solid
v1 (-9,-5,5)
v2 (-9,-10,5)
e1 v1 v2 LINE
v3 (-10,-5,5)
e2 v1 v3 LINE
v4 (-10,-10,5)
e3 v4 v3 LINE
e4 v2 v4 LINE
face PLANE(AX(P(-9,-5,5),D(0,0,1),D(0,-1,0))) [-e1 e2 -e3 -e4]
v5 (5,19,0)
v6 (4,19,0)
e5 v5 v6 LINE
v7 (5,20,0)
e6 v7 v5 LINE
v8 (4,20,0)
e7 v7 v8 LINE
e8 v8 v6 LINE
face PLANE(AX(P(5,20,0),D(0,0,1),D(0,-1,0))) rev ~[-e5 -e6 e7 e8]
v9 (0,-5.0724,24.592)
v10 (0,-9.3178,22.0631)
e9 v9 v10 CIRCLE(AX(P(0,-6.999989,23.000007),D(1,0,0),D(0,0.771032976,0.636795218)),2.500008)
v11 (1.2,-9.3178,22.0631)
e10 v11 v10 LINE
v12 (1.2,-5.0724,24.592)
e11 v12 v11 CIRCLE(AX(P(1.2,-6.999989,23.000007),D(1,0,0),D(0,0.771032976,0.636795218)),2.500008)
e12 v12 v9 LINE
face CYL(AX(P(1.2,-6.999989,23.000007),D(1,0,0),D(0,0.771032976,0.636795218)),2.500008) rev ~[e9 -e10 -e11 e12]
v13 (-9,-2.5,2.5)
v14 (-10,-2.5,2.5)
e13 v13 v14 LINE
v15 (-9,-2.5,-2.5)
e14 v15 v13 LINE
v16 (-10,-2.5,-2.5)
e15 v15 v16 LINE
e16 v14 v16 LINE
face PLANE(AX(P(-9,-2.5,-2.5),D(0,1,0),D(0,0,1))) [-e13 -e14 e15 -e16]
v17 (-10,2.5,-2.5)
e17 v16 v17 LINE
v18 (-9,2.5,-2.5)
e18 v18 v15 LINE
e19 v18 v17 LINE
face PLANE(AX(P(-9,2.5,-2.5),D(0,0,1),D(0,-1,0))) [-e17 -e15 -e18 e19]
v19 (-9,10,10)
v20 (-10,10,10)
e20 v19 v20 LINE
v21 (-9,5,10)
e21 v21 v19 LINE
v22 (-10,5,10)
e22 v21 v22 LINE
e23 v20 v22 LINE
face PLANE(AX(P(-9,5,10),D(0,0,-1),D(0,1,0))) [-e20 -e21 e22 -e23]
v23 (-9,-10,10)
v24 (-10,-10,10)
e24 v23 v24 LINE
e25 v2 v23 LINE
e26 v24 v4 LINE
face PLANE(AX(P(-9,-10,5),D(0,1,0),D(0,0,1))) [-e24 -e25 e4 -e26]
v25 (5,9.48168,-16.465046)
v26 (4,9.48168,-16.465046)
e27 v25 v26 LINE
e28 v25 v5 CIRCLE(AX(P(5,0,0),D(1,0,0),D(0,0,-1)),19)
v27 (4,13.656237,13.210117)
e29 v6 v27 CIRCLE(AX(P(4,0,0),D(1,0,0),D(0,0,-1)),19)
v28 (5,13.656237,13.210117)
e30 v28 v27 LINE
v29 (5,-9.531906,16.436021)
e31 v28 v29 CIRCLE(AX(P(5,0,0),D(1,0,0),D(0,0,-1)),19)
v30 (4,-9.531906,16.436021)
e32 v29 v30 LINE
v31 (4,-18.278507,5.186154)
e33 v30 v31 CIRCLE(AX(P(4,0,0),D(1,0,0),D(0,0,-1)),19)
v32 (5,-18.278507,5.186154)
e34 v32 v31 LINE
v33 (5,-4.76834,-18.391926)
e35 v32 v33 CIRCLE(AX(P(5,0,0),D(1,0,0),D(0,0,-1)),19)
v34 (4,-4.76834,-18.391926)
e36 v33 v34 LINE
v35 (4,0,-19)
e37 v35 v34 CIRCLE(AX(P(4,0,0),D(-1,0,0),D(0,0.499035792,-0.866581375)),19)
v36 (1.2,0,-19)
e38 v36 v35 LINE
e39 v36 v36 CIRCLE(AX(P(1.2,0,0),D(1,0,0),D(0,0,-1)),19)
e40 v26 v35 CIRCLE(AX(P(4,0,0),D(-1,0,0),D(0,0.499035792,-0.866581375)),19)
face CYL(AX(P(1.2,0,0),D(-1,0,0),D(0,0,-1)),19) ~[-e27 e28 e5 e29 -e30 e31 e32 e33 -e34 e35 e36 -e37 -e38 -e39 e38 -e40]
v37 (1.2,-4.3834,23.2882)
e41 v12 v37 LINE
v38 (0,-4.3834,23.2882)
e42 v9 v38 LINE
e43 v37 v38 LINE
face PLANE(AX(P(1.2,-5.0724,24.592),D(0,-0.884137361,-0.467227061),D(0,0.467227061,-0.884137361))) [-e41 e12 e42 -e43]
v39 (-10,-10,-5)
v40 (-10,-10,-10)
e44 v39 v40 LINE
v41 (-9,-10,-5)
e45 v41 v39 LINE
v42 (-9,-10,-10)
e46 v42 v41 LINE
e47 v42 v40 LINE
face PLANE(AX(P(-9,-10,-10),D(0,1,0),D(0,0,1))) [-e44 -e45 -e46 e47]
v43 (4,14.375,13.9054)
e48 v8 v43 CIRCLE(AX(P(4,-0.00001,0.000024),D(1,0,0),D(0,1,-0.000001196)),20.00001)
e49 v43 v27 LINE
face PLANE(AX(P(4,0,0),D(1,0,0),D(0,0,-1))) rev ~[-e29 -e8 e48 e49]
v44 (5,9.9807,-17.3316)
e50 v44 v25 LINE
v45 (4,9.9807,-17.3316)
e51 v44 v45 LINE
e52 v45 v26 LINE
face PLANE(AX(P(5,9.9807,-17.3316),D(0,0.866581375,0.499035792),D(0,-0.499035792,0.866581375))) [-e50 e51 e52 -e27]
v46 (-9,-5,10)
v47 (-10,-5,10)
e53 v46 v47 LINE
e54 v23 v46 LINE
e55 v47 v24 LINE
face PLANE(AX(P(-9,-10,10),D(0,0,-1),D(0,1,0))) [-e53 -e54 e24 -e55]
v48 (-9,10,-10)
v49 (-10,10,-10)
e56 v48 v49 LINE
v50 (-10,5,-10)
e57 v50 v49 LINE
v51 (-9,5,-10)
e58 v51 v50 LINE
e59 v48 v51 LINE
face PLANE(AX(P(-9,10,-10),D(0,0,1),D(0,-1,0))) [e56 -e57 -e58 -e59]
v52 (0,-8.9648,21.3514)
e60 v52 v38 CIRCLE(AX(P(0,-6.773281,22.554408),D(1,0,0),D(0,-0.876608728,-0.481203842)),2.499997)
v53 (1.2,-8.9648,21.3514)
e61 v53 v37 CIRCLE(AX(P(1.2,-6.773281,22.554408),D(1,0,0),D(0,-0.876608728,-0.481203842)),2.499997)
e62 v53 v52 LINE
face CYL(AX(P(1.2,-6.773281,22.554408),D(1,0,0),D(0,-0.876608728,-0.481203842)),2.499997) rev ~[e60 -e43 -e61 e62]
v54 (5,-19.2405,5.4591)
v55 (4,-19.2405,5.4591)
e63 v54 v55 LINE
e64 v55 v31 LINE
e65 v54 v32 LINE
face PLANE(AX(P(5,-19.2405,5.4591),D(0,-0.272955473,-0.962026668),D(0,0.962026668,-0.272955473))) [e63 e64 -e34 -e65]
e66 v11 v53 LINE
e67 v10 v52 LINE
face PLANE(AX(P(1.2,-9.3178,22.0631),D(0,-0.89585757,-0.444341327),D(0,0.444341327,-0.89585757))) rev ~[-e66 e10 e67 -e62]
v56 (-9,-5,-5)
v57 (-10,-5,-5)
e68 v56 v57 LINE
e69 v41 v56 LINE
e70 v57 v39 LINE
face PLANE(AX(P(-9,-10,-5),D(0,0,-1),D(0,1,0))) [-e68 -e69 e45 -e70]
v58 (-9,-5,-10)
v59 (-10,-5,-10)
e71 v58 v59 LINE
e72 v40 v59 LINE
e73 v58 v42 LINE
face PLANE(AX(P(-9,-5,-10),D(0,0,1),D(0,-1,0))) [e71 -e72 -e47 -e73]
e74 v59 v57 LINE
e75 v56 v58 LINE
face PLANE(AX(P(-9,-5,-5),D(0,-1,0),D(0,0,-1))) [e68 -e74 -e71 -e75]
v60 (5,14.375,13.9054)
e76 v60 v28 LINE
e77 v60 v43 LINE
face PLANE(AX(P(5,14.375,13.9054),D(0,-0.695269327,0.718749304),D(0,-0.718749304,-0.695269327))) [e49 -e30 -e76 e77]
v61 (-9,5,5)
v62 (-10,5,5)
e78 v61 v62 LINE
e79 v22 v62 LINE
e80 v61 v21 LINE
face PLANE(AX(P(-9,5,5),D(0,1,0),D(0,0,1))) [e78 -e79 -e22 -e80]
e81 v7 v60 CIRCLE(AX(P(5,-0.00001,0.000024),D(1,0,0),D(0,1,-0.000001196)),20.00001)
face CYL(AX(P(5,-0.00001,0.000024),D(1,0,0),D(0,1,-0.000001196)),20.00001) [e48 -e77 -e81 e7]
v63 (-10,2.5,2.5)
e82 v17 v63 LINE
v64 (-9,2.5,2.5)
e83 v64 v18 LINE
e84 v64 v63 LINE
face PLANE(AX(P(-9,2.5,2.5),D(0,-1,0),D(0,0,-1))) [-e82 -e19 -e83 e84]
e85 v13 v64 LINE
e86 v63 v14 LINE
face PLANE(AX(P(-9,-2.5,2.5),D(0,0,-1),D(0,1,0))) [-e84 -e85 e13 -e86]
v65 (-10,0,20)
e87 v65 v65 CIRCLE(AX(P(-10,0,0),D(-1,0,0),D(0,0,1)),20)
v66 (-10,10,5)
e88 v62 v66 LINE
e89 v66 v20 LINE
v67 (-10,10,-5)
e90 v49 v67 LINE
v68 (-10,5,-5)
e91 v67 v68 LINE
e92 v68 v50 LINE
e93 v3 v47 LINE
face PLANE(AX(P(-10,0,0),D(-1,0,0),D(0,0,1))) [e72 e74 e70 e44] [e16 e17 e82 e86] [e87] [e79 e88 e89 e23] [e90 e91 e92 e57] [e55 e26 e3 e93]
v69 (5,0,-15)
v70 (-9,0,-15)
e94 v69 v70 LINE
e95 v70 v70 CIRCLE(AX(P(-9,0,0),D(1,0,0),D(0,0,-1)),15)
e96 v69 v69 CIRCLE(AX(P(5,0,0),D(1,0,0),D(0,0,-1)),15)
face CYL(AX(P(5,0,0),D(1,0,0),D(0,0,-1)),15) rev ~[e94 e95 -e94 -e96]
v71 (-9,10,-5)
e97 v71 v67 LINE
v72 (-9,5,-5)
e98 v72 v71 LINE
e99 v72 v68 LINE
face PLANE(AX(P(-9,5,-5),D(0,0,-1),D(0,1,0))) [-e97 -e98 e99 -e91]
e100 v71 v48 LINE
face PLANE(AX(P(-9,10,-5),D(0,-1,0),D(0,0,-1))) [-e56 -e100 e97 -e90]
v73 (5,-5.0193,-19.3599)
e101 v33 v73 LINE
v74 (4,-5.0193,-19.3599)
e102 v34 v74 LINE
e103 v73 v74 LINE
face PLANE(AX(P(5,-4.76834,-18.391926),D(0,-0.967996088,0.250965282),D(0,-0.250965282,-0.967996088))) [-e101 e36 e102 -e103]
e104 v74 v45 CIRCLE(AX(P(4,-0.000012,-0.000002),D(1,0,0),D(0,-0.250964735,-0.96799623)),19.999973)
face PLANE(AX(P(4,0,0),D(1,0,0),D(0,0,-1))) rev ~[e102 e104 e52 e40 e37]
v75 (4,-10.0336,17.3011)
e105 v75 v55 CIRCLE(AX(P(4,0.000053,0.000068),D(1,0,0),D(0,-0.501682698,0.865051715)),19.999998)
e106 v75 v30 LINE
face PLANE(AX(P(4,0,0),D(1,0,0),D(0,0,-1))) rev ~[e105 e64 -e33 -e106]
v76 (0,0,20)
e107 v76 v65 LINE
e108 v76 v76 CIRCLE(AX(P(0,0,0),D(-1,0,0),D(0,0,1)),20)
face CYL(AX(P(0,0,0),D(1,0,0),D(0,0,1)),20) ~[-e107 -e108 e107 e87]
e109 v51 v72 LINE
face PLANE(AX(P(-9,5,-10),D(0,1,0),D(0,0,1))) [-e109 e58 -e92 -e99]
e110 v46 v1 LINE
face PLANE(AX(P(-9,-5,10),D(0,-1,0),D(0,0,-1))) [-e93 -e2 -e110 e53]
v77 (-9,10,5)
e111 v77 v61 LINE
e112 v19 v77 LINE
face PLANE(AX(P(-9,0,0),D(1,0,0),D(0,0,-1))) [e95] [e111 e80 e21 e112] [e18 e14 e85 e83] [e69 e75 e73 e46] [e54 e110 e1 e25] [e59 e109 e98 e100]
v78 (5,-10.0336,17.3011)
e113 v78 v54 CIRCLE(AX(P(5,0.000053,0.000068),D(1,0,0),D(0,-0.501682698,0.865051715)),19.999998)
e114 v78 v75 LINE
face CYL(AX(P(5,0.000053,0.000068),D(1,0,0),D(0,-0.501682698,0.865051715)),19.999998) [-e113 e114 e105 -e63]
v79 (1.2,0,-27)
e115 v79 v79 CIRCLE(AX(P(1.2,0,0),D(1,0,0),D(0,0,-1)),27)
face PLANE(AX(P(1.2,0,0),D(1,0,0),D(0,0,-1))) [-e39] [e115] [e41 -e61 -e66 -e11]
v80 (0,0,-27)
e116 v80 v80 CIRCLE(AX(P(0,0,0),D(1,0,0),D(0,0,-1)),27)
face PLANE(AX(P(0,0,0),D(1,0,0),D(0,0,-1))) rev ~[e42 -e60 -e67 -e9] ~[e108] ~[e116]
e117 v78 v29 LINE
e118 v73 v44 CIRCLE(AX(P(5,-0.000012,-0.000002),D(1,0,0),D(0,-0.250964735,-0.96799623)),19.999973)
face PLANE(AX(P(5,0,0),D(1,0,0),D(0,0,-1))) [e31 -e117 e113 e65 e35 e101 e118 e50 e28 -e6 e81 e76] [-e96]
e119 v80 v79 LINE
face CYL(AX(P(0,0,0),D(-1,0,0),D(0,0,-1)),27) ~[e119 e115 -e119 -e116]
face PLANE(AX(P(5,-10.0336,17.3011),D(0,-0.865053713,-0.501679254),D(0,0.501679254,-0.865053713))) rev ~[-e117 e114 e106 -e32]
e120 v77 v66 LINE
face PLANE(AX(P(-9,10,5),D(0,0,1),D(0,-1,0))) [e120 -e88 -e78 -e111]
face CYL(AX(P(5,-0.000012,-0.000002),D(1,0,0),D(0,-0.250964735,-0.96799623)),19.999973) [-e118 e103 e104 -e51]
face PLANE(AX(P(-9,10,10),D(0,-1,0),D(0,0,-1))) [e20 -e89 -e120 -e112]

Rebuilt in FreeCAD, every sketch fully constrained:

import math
import FreeCAD as App
import Part
import Sketcher
Q = App.Units.Quantity


def add_polygon(sketch, points):
    """Adds a closed chain of lines whose ends are joined by coincident constraints."""
    first, n = sketch.GeometryCount, len(points)
    for a, b in zip(points, points[1:] + points[:1]):
        sketch.addGeometry(Part.LineSegment(App.Vector(*a, 0), App.Vector(*b, 0)), False)
    for i in range(n):
        sketch.addConstraint(Sketcher.Constraint("Coincident", first + i, 2, first + (i + 1) % n, 1))

doc = App.newDocument("Part")
body = doc.addObject("PartDesign::Body", "Body")

sketch1 = body.newObject("Sketcher::SketchObject", "Sketch")
sketch1.AttachmentSupport = (doc.getObject("YZ_Plane"), [""])
sketch1.MapMode = "FlatFace"
sketch1.addGeometry(Part.Circle(App.Vector(0, 0, 0), App.Vector(0, 0, 1), 27), False)
sketch1.addConstraint([
    Sketcher.Constraint("Coincident", 0, 3, -1, 1),
    Sketcher.Constraint("Diameter", 0, 54.0),
])
pad1 = body.newObject("PartDesign::Pad", "Pad")
pad1.Profile = sketch1
pad1.Length = 1.2

sketch2 = body.newObject("Sketcher::SketchObject", "Sketch001")
sketch2.AttachmentSupport = (doc.getObject("YZ_Plane"), [""])
sketch2.MapMode = "FlatFace"
sketch2.AttachmentOffset = App.Placement(App.Vector(0, 0, 1.2), App.Rotation())
sketch2.addGeometry(Part.Circle(App.Vector(0, 0, 0), App.Vector(0, 0, 1), 19), False)
sketch2.addConstraint([
    Sketcher.Constraint("Coincident", 0, 3, -1, 1),
    Sketcher.Constraint("Diameter", 0, 38.0),
])
pad2 = body.newObject("PartDesign::Pad", "Pad001")
pad2.Profile = sketch2
pad2.Length = 3.8

sketch3 = body.newObject("Sketcher::SketchObject", "Sketch002")
sketch3.AttachmentSupport = (doc.getObject("YZ_Plane"), [""])
sketch3.MapMode = "FlatFace"
sketch3.AttachmentOffset = App.Placement(App.Vector(0, 0, 5), App.Rotation())
sketch3.addGeometry([
    Part.ArcOfCircle(Part.Circle(App.Vector(0, 0, 0), App.Vector(0, 0, 1), 19), math.radians(-105), math.radians(-60)),
    Part.LineSegment(App.Vector(-4.8, -18.4, 0), App.Vector(-5, -19.4, 0)),
    Part.ArcOfCircle(Part.Circle(App.Vector(0, 0, 0), App.Vector(0, 0, 1), 20), math.radians(-105), math.radians(-60)),
    Part.LineSegment(App.Vector(10, -17.3, 0), App.Vector(9.5, -16.5, 0)),
    Part.ArcOfCircle(Part.Circle(App.Vector(0, 0, 0), App.Vector(0, 0, 1), 19), math.radians(0), math.radians(44)),
    Part.LineSegment(App.Vector(19, 0, 0), App.Vector(20, 0, 0)),
    Part.ArcOfCircle(Part.Circle(App.Vector(0, 0, 0), App.Vector(0, 0, 1), 20), math.radians(0), math.radians(44)),
    Part.LineSegment(App.Vector(14.4, 13.9, 0), App.Vector(13.7, 13.2, 0)),
    Part.LineSegment(App.Vector(-19.2, 5.5, 0), App.Vector(-18.3, 5.2, 0)),
    Part.ArcOfCircle(Part.Circle(App.Vector(0, 0, 0), App.Vector(0, 0, 1), 19), math.radians(120), math.radians(164)),
    Part.LineSegment(App.Vector(-9.5, 16.4, 0), App.Vector(-10, 17.3, 0)),
    Part.ArcOfCircle(Part.Circle(App.Vector(0, 0, 0), App.Vector(0, 0, 1), 20), math.radians(120), math.radians(164)),
], False)
sketch3.addConstraint([
    Sketcher.Constraint("Coincident", 0, 1, 1, 1),
    Sketcher.Constraint("Coincident", 1, 2, 2, 1),
    Sketcher.Constraint("Coincident", 2, 2, 3, 1),
    Sketcher.Constraint("Coincident", 3, 2, 0, 2),
    Sketcher.Constraint("Coincident", 4, 1, 5, 1),
    Sketcher.Constraint("Coincident", 5, 2, 6, 1),
    Sketcher.Constraint("Coincident", 6, 2, 7, 1),
    Sketcher.Constraint("Coincident", 7, 2, 4, 2),
    Sketcher.Constraint("Coincident", 8, 2, 9, 2),
    Sketcher.Constraint("Coincident", 9, 1, 10, 1),
    Sketcher.Constraint("Coincident", 10, 2, 11, 1),
    Sketcher.Constraint("Coincident", 11, 2, 8, 1),
    Sketcher.Constraint("Horizontal", 5),
    Sketcher.Constraint("Coincident", 0, 3, -1, 1),
    Sketcher.Constraint("Coincident", 2, 3, -1, 1),
    Sketcher.Constraint("Coincident", 4, 3, -1, 1),
    Sketcher.Constraint("Coincident", 6, 3, -1, 1),
    Sketcher.Constraint("Coincident", 9, 3, -1, 1),
    Sketcher.Constraint("Coincident", 11, 3, -1, 1),
    Sketcher.Constraint("Equal", 0, 4),
    Sketcher.Constraint("Equal", 2, 6),
    Sketcher.Constraint("Equal", 4, 9),
    Sketcher.Constraint("Equal", 6, 11),
    Sketcher.Constraint("PointOnObject", 4, 1, -1),
    Sketcher.Constraint("Radius", 2, 20.0),
    Sketcher.Constraint("Radius", 0, 19.0),
    Sketcher.Constraint("DistanceX", 1, 2, 2, 2, 15.0),
    Sketcher.Constraint("Angle", 8, Q("-15.8402 deg")),
    Sketcher.Constraint("Angle", 10, Q("120.1112 deg")),
    Sketcher.Constraint("DistanceY", 1, 2, -1, 1, 19.36),
    Sketcher.Constraint("DistanceY", -1, 1, 7, 2, 13.21),
    Sketcher.Constraint("DistanceX", 0, 1, 3, 2, 14.25),
    Sketcher.Constraint("DistanceY", 0, 1, -1, 1, 18.392),
    Sketcher.Constraint("DistanceX", -1, 1, 6, 2, 14.375),
    Sketcher.Constraint("DistanceX", 9, 1, -1, 1, 9.532),
    Sketcher.Constraint("DistanceY", -1, 1, 11, 2, 5.459),
])
pad3 = body.newObject("PartDesign::Pad", "Pad002")
pad3.Profile = sketch3
pad3.Length = 1
pad3.Reversed = True

sketch4 = body.newObject("Sketcher::SketchObject", "Sketch003")
sketch4.AttachmentSupport = (doc.getObject("YZ_Plane"), [""])
sketch4.MapMode = "FlatFace"
sketch4.AttachmentOffset = App.Placement(App.Vector(0, 0, 1.2), App.Rotation())
sketch4.addGeometry([
    Part.LineSegment(App.Vector(-4.4, 23.3, 0), App.Vector(-5.1, 24.6, 0)),
    Part.ArcOfCircle(Part.Circle(App.Vector(-7, 23, 0), App.Vector(0, 0, 1), 2.5), math.radians(40), math.radians(202)),
    Part.LineSegment(App.Vector(-9.3, 22.1, 0), App.Vector(-9, 21.4, 0)),
    Part.ArcOfCircle(Part.Circle(App.Vector(-6.8, 22.6, 0), App.Vector(0, 0, 1), 2.5), math.radians(-151), math.radians(17)),
], False)
sketch4.addConstraint([
    Sketcher.Constraint("Coincident", 0, 2, 1, 1),
    Sketcher.Constraint("Coincident", 1, 2, 2, 1),
    Sketcher.Constraint("Coincident", 2, 2, 3, 1),
    Sketcher.Constraint("Coincident", 3, 2, 0, 1),
    Sketcher.Constraint("Equal", 1, 3),
    Sketcher.Constraint("Radius", 1, 2.5),
    Sketcher.Constraint("DistanceX", 1, 3, -1, 1, 7.0),
    Sketcher.Constraint("DistanceY", -1, 1, 1, 3, 23.0),
    Sketcher.Constraint("DistanceY", -1, 1, 0, 2, 24.592),
    Sketcher.Constraint("DistanceY", -1, 1, 1, 2, 22.063),
    Sketcher.Constraint("DistanceX", 3, 3, 0, 2, 1.701),
    Sketcher.Constraint("DistanceX", 1, 2, 2, 2, 0.353),
    Sketcher.Constraint("DistanceX", 0, 2, 3, 2, 0.689),
    Sketcher.Constraint("DistanceY", 1, 2, 3, 2, 1.225),
])
pocket1 = body.newObject("PartDesign::Pocket", "Pocket")
pocket1.Profile = sketch4
pocket1.Length = 11

sketch5 = body.newObject("Sketcher::SketchObject", "Sketch004")
sketch5.AttachmentSupport = (doc.getObject("YZ_Plane"), [""])
sketch5.MapMode = "FlatFace"
sketch5.addGeometry(Part.Circle(App.Vector(0, 0, 0), App.Vector(0, 0, 1), 20), False)
sketch5.addConstraint([
    Sketcher.Constraint("Coincident", 0, 3, -1, 1),
    Sketcher.Constraint("Diameter", 0, 40.0),
])
pad4 = body.newObject("PartDesign::Pad", "Pad003")
pad4.Profile = sketch5
pad4.Length = 10
pad4.Reversed = True

sketch6 = body.newObject("Sketcher::SketchObject", "Sketch005")
sketch6.AttachmentSupport = (doc.getObject("YZ_Plane"), [""])
sketch6.MapMode = "FlatFace"
sketch6.AttachmentOffset = App.Placement(App.Vector(0, 0, 5), App.Rotation())
sketch6.addGeometry(Part.Circle(App.Vector(0, 0, 0), App.Vector(0, 0, 1), 15), False)
sketch6.addConstraint([
    Sketcher.Constraint("Coincident", 0, 3, -1, 1),
    Sketcher.Constraint("Diameter", 0, 30.0),
])
pocket2 = body.newObject("PartDesign::Pocket", "Pocket001")
pocket2.Profile = sketch6
pocket2.Length = 14

sketch7 = body.newObject("Sketcher::SketchObject", "Sketch006")
sketch7.AttachmentSupport = (doc.getObject("YZ_Plane"), [""])
sketch7.MapMode = "FlatFace"
sketch7.AttachmentOffset = App.Placement(App.Vector(0, 0, -9), App.Rotation())
add_polygon(sketch7, [(2, -2), (2, 2), (-2, 2), (-2, -2)])
add_polygon(sketch7, [(10, -10), (10, -5), (5, -5), (5, -10)])
add_polygon(sketch7, [(10, 5), (10, 10), (5, 10), (5, 5)])
add_polygon(sketch7, [(-5, 5), (-5, 10), (-10, 10), (-10, 5)])
add_polygon(sketch7, [(-5, -10), (-5, -5), (-10, -5), (-10, -10)])
sketch7.addConstraint([
    Sketcher.Constraint("Vertical", 0),
    Sketcher.Constraint("Horizontal", 1),
    Sketcher.Constraint("Vertical", 2),
    Sketcher.Constraint("Horizontal", 3),
    Sketcher.Constraint("Vertical", 4),
    Sketcher.Constraint("Horizontal", 5),
    Sketcher.Constraint("Vertical", 6),
    Sketcher.Constraint("Horizontal", 7),
    Sketcher.Constraint("Vertical", 8),
    Sketcher.Constraint("Horizontal", 9),
    Sketcher.Constraint("Vertical", 10),
    Sketcher.Constraint("Horizontal", 11),
    Sketcher.Constraint("Vertical", 12),
    Sketcher.Constraint("Horizontal", 13),
    Sketcher.Constraint("Vertical", 14),
    Sketcher.Constraint("Horizontal", 15),
    Sketcher.Constraint("Vertical", 16),
    Sketcher.Constraint("Horizontal", 17),
    Sketcher.Constraint("Vertical", 18),
    Sketcher.Constraint("Horizontal", 19),
    Sketcher.Constraint("Symmetric", 0, 2, 2, 2, -1, 1),
    Sketcher.Constraint("Symmetric", 6, 2, 12, 2, -1, 1),
    Sketcher.Constraint("Symmetric", 4, 2, 14, 2, -1, 1),
    Sketcher.Constraint("Symmetric", 10, 2, 16, 2, -1, 1),
    Sketcher.Constraint("Symmetric", 8, 2, 18, 2, -1, 1),
    Sketcher.Constraint("Symmetric", 9, 2, 12, 2, -2),
    Sketcher.Constraint("Symmetric", 11, 2, 14, 2, -2),
    Sketcher.Constraint("Equal", 3, 5),
    Sketcher.Constraint("Equal", 19, 0),
    Sketcher.Constraint("Equal", 2, 4),
    Sketcher.Constraint("DistanceX", 1, 2, 1, 1, 5.0),
    Sketcher.Constraint("DistanceY", 4, 2, -1, 1, 5.0),
    Sketcher.Constraint("DistanceX", -1, 1, 5, 2, 5.0),
])
pocket3 = body.newObject("PartDesign::Pocket", "Pocket002")
pocket3.Profile = sketch7
pocket3.Length = 5

doc.recompute()
